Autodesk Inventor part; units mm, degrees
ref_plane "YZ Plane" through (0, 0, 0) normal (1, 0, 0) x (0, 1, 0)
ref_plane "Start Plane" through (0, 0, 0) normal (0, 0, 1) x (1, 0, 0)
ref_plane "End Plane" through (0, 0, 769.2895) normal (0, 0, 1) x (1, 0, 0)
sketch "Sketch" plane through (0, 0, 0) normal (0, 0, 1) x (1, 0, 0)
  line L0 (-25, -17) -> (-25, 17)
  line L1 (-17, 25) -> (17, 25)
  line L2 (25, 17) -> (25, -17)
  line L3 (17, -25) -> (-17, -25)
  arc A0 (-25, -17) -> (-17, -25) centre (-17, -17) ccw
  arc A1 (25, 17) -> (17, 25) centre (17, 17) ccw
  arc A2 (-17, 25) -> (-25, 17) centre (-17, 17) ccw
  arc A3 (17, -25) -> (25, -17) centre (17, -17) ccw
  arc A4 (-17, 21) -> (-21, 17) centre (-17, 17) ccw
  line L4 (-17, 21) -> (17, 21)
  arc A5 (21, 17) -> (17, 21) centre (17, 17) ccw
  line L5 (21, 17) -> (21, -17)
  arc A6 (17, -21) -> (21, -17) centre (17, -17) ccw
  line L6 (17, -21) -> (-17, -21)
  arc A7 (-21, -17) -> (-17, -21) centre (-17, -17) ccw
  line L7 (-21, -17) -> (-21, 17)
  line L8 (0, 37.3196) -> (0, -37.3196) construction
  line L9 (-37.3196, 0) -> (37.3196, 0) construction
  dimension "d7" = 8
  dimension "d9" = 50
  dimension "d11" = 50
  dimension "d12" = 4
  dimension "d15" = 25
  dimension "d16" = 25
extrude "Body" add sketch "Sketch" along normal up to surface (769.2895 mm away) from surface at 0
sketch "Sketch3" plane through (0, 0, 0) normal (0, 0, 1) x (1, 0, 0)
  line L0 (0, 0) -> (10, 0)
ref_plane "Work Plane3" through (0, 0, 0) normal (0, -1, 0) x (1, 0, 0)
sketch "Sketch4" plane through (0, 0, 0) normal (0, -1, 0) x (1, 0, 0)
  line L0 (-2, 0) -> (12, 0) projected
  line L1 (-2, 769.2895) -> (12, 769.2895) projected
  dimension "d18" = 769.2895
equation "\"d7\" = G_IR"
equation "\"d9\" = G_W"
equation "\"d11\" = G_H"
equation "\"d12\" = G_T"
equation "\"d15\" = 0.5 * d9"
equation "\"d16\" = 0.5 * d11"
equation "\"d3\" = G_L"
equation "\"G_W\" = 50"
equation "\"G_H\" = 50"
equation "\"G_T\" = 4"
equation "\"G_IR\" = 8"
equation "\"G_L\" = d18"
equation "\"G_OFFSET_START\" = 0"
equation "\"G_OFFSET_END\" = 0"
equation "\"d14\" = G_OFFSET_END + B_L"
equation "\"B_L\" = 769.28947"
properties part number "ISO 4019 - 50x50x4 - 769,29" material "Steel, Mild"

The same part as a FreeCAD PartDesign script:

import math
import FreeCAD as App
import Part
import Sketcher
from FreeCAD import Vector
Q = App.Units.Quantity

doc = App.newDocument("Part")
body = doc.addObject("PartDesign::Body", "Body")

# Sketch on XY plane
sketch1 = doc.addObject("Sketcher::SketchObject", "Sketch")
body.addObject(sketch1)
sketch1.AttachmentSupport = (doc.XY_Plane, [""])
sketch1.MapMode = "FlatFace"
sketch1.addGeometry([
    Part.LineSegment(Vector(-25, 17, 0), Vector(-25, -17, 0)),  # 0
    Part.ArcOfCircle(Part.Circle(Vector(-17, -17, 0), Vector(0, 0, 1), 8), math.radians(180), math.radians(270)),  # 1
    Part.LineSegment(Vector(-17, -25, 0), Vector(17, -25, 0)),  # 2
    Part.ArcOfCircle(Part.Circle(Vector(17, -17, 0), Vector(0, 0, 1), 8), math.radians(-90), math.radians(0)),  # 3
    Part.LineSegment(Vector(25, -17, 0), Vector(25, 17, 0)),  # 4
    Part.ArcOfCircle(Part.Circle(Vector(17, 17, 0), Vector(0, 0, 1), 8), math.radians(0), math.radians(90)),  # 5
    Part.LineSegment(Vector(17, 25, 0), Vector(-17, 25, 0)),  # 6
    Part.ArcOfCircle(Part.Circle(Vector(-17, 17, 0), Vector(0, 0, 1), 8), math.radians(90), math.radians(180)),  # 7
    Part.ArcOfCircle(Part.Circle(Vector(-17, 17, 0), Vector(0, 0, 1), 4), math.radians(90), math.radians(180)),  # 8
    Part.LineSegment(Vector(-17, 21, 0), Vector(17, 21, 0)),  # 9
    Part.ArcOfCircle(Part.Circle(Vector(17, 17, 0), Vector(0, 0, 1), 4), math.radians(0), math.radians(90)),  # 10
    Part.LineSegment(Vector(21, 17, 0), Vector(21, -17, 0)),  # 11
    Part.ArcOfCircle(Part.Circle(Vector(17, -17, 0), Vector(0, 0, 1), 4), math.radians(-90), math.radians(0)),  # 12
    Part.LineSegment(Vector(17, -21, 0), Vector(-17, -21, 0)),  # 13
    Part.ArcOfCircle(Part.Circle(Vector(-17, -17, 0), Vector(0, 0, 1), 4), math.radians(180), math.radians(270)),  # 14
    Part.LineSegment(Vector(-21, -17, 0), Vector(-21, 17, 0)),  # 15
], False)
sketch1.addConstraint([
    Sketcher.Constraint("Tangent", 0, 2, 1, 1),
    Sketcher.Constraint("Tangent", 1, 2, 2, 1),
    Sketcher.Constraint("Tangent", 2, 2, 3, 1),
    Sketcher.Constraint("Tangent", 3, 2, 4, 1),
    Sketcher.Constraint("Tangent", 4, 2, 5, 1),
    Sketcher.Constraint("Tangent", 5, 2, 6, 1),
    Sketcher.Constraint("Tangent", 6, 2, 7, 1),
    Sketcher.Constraint("Tangent", 7, 2, 0, 1),
    Sketcher.Constraint("Tangent", 8, 1, 9, 1),
    Sketcher.Constraint("Tangent", 9, 2, 10, 2),
    Sketcher.Constraint("Tangent", 10, 1, 11, 1),
    Sketcher.Constraint("Tangent", 11, 2, 12, 2),
    Sketcher.Constraint("Tangent", 12, 1, 13, 1),
    Sketcher.Constraint("Tangent", 13, 2, 14, 2),
    Sketcher.Constraint("Tangent", 14, 1, 15, 1),
    Sketcher.Constraint("Tangent", 15, 2, 8, 2),
    Sketcher.Constraint("Vertical", 0),
    Sketcher.Constraint("Horizontal", 2),
    Sketcher.Constraint("Vertical", 4),
    Sketcher.Constraint("Horizontal", 6),
    Sketcher.Constraint("Horizontal", 9),
    Sketcher.Constraint("Vertical", 11),
    Sketcher.Constraint("Horizontal", 13),
    Sketcher.Constraint("Vertical", 15),
    Sketcher.Constraint("Coincident", 8, 3, 7, 3),
    Sketcher.Constraint("Coincident", 10, 3, 5, 3),
    Sketcher.Constraint("Coincident", 12, 3, 3, 3),
    Sketcher.Constraint("Equal", 1, 3),
    Sketcher.Constraint("Equal", 3, 5),
    Sketcher.Constraint("Equal", 5, 7),
    Sketcher.Constraint("Equal", 12, 14),
    Sketcher.Constraint("Symmetric", 1, 3, 5, 3, -1, 1),
    Sketcher.Constraint("Equal", 13, 0),
    Sketcher.Constraint("Radius", 1, Q("8 mm")),
    Sketcher.Constraint("Radius", 8, Q("4 mm")),
    Sketcher.Constraint("DistanceX", 0, 2, -1, 1, Q("25 mm")),
])
pad1 = doc.addObject("PartDesign::Pad", "Pad")
body.addObject(pad1)
pad1.Profile = sketch1
pad1.Length = 769.2895

doc.recompute()
